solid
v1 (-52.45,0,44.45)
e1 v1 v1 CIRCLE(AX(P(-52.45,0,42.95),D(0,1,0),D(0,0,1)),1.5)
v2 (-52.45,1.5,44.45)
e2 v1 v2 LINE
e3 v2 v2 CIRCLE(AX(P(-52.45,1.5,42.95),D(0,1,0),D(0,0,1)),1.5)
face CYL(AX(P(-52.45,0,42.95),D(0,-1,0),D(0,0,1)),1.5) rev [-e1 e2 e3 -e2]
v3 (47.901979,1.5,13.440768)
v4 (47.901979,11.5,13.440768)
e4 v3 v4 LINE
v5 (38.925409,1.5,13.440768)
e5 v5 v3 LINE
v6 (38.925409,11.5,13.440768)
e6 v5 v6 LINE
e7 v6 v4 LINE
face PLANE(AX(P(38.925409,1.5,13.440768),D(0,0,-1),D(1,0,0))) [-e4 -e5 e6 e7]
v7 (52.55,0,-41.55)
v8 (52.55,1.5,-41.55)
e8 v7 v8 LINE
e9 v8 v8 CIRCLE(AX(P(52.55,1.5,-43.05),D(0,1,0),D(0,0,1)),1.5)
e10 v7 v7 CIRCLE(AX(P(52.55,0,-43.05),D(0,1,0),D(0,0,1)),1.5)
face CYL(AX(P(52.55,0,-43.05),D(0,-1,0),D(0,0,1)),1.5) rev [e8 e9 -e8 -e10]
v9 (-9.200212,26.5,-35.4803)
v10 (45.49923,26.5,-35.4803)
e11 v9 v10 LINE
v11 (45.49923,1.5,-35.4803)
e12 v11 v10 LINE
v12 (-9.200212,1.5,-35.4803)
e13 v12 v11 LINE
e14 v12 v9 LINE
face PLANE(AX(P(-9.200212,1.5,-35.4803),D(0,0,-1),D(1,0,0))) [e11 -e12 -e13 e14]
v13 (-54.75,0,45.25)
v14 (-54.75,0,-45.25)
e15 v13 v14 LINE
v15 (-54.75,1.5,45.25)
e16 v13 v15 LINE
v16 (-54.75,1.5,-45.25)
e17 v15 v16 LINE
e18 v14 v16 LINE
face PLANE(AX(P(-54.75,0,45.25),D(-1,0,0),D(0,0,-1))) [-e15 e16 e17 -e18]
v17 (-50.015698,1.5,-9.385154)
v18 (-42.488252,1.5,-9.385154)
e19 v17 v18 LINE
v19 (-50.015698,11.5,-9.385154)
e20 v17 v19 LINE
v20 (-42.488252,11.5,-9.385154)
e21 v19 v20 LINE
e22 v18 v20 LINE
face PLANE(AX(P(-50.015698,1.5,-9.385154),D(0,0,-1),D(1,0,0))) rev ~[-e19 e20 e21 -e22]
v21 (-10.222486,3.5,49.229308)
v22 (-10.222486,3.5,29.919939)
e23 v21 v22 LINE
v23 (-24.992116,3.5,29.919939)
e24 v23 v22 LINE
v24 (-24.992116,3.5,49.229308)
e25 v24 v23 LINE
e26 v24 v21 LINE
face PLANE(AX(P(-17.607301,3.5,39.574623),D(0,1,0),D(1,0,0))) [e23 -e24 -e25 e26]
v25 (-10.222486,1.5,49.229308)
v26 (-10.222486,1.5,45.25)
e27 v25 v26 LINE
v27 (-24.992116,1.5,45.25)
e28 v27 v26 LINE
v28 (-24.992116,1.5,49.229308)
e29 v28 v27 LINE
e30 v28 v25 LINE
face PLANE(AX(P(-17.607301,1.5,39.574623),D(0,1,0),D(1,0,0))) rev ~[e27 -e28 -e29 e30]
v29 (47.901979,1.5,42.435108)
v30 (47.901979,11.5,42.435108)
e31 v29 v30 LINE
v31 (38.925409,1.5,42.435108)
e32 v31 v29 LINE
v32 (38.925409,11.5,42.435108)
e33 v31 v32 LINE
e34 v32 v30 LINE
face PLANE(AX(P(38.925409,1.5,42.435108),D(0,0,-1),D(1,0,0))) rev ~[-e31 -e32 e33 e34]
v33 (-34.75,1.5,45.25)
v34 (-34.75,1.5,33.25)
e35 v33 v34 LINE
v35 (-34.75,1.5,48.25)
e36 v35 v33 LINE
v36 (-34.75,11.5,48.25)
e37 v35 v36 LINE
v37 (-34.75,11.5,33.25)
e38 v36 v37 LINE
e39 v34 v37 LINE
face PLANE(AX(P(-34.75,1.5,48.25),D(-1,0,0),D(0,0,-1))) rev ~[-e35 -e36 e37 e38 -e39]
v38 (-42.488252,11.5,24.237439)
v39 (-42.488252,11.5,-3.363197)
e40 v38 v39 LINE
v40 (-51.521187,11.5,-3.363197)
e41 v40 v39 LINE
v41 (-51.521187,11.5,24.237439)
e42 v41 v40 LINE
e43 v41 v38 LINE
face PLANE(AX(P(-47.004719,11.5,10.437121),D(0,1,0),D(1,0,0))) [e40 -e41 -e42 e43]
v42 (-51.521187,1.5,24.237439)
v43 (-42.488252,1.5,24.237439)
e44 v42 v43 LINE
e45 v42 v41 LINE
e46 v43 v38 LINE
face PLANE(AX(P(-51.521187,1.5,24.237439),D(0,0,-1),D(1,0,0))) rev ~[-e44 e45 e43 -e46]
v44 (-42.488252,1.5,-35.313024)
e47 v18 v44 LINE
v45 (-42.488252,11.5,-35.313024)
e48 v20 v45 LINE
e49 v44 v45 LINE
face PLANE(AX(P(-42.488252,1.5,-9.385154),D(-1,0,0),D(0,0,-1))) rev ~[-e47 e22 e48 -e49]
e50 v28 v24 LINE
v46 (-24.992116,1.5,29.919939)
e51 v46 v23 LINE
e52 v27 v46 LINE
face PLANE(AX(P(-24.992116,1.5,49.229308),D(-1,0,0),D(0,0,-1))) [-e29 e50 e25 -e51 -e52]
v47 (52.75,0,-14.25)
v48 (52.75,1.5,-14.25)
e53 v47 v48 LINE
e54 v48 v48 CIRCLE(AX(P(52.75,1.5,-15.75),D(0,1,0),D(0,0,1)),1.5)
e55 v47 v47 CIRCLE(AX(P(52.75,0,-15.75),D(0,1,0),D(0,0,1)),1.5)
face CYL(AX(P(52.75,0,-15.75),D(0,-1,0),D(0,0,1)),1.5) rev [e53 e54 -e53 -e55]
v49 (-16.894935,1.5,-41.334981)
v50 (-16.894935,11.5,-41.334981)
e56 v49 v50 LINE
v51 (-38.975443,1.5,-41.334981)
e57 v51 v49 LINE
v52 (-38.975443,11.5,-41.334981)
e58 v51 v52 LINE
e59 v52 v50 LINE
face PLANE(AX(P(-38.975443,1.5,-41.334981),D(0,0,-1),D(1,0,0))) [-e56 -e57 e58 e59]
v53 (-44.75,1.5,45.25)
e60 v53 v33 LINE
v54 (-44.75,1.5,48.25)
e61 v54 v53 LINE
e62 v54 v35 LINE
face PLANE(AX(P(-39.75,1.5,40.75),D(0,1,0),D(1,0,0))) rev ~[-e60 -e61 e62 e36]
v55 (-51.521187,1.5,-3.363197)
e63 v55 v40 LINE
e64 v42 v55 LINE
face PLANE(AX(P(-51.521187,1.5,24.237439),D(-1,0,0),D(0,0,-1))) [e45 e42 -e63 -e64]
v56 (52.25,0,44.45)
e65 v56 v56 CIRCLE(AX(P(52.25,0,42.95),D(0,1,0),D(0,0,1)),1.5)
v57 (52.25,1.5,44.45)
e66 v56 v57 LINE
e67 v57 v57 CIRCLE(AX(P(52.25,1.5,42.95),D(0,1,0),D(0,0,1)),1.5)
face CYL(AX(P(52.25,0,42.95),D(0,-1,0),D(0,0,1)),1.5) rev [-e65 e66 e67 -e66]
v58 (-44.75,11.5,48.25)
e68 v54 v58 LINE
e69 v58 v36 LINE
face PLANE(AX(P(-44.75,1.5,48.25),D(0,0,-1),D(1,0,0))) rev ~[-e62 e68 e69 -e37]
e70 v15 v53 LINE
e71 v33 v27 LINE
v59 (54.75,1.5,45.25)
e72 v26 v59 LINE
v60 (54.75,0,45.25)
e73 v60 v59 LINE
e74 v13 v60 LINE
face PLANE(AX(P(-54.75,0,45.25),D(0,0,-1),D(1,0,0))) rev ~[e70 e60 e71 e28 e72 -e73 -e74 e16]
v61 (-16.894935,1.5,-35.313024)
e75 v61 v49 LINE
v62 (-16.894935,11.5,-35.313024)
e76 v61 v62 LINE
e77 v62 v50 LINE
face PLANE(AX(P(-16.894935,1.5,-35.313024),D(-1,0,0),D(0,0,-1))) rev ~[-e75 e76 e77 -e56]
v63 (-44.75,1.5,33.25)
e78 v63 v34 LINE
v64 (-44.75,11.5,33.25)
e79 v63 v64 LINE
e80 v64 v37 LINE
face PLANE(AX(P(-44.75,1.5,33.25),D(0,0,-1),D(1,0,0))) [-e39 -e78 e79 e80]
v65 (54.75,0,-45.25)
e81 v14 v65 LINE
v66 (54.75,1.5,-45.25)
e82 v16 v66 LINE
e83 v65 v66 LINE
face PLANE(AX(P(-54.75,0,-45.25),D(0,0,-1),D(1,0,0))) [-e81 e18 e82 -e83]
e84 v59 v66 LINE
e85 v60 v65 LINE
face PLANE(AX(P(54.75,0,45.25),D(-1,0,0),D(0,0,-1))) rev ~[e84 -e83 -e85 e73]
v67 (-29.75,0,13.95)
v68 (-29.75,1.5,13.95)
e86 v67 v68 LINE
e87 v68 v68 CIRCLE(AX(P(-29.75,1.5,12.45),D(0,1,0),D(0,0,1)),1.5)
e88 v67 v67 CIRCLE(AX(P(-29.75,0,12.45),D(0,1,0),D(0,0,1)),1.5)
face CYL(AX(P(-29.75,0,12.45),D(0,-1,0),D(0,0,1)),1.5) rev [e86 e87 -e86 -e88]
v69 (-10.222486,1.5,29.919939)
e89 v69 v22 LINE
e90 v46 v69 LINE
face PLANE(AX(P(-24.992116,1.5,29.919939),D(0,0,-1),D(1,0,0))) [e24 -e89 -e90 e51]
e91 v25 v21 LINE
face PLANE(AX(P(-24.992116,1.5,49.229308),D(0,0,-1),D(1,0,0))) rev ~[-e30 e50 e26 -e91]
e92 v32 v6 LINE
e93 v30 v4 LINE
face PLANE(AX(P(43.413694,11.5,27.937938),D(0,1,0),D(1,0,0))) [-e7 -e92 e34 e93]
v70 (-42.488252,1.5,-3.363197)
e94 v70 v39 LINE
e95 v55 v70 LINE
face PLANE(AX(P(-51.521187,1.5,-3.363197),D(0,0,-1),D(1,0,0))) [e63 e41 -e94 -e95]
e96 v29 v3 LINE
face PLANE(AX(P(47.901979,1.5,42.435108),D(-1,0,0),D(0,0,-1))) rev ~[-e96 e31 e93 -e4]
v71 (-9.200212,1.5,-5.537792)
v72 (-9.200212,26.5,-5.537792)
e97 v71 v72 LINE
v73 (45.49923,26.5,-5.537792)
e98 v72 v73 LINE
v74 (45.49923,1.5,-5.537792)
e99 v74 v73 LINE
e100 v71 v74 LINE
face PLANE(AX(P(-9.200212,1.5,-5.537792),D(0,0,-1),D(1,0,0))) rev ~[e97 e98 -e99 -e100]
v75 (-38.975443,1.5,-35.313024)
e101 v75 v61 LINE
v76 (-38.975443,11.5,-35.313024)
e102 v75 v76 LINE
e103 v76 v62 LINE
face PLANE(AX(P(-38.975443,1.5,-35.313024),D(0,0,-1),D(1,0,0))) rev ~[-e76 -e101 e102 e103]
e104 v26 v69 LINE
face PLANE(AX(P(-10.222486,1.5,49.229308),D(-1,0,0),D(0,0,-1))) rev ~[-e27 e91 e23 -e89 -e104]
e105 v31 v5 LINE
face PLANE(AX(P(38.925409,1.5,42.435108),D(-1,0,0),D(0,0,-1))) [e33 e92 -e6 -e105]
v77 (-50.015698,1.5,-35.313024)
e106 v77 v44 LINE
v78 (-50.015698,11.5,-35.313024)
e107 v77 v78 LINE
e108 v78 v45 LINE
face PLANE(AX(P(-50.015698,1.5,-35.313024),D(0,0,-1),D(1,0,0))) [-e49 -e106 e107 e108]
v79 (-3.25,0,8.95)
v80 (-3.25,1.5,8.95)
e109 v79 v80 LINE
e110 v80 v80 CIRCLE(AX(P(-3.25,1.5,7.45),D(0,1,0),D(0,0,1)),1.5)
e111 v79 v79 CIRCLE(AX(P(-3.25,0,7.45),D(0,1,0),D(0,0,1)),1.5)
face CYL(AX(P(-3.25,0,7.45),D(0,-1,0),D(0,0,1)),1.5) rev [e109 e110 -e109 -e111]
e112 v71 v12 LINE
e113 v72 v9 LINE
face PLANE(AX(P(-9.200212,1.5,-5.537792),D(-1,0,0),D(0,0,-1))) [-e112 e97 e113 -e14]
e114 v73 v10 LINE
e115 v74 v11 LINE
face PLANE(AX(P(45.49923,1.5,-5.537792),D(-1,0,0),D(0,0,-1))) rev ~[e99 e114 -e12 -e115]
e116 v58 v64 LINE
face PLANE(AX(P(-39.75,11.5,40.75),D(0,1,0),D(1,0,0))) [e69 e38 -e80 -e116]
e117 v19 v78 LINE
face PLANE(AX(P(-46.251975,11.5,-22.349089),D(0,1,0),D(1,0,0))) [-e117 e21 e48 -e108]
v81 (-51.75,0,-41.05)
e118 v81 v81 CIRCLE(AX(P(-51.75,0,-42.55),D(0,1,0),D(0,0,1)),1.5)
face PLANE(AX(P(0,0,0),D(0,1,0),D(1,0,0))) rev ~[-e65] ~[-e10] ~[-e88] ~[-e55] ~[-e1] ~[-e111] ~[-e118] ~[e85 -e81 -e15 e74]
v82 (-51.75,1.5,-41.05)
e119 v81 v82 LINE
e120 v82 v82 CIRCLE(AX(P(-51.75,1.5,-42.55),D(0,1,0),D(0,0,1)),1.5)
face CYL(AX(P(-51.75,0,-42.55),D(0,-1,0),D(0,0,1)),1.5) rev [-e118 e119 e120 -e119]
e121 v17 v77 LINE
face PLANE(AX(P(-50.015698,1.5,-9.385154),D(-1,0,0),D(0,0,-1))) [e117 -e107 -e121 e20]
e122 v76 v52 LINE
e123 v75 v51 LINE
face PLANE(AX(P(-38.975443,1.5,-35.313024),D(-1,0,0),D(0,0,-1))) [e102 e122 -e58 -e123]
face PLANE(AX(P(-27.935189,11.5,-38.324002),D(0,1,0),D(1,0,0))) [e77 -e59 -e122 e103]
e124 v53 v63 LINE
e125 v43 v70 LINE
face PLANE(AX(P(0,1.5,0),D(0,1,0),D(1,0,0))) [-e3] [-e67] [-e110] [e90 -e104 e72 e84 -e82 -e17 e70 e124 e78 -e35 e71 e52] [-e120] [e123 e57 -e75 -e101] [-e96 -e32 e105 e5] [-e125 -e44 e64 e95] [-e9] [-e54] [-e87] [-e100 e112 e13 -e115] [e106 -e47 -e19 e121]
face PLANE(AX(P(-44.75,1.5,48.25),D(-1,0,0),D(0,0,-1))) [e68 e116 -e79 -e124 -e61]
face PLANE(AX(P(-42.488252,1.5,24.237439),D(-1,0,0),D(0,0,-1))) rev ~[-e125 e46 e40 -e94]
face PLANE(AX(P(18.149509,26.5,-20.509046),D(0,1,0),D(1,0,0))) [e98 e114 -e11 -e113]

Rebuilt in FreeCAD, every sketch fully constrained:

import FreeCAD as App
import Part
import Sketcher

V = App.Vector
Q = App.Units.Quantity


def add_polygon(sketch, points):
    """Adds a closed chain of lines whose ends are joined by coincident constraints."""
    first, n = sketch.GeometryCount, len(points)
    for a, b in zip(points, points[1:] + points[:1]):
        sketch.addGeometry(Part.LineSegment(App.Vector(*a, 0), App.Vector(*b, 0)), False)
    for i in range(n):
        sketch.addConstraint(Sketcher.Constraint("Coincident", first + i, 2, first + (i + 1) % n, 1))

doc = App.newDocument("Part")
body = doc.addObject("PartDesign::Body", "Body")

# Sketch on XZ plane
sketch1 = body.newObject("Sketcher::SketchObject", "Sketch")
sketch1.AttachmentSupport = (doc.getObject("XZ_Plane"), [""])
sketch1.MapMode = "FlatFace"
add_polygon(sketch1, [(-54.8, -45.2), (-54.8, 45.2), (54.8, 45.2), (54.8, -45.2)])  # lines 0-3
sketch1.addGeometry(Part.Circle(V(-52.5, 43, 0), V(0, 0, 1), 1.5), False)  # 4
sketch1.addGeometry(Part.Circle(V(-29.8, 12.4, 0), V(0, 0, 1), 1.5), False)  # 5
sketch1.addGeometry(Part.Circle(V(-3.2, 7.5, 0), V(0, 0, 1), 1.5), False)  # 6
sketch1.addGeometry(Part.Circle(V(52.2, 43, 0), V(0, 0, 1), 1.5), False)  # 7
sketch1.addGeometry(Part.Circle(V(-51.8, -42.5, 0), V(0, 0, 1), 1.5), False)  # 8
sketch1.addGeometry(Part.Circle(V(52.8, -15.8, 0), V(0, 0, 1), 1.5), False)  # 9
sketch1.addGeometry(Part.Circle(V(52.5, -43, 0), V(0, 0, 1), 1.5), False)  # 10
sketch1.addConstraint([
    Sketcher.Constraint("Vertical", 0),
    Sketcher.Constraint("Horizontal", 1),
    Sketcher.Constraint("Vertical", 2),
    Sketcher.Constraint("Horizontal", 3),
    Sketcher.Constraint("Equal", 4, 5),
    Sketcher.Constraint("Equal", 5, 6),
    Sketcher.Constraint("Equal", 6, 7),
    Sketcher.Constraint("Equal", 7, 8),
    Sketcher.Constraint("Equal", 8, 9),
    Sketcher.Constraint("Equal", 9, 10),
    Sketcher.Constraint("Symmetric", 0, 2, 2, 2, -1, 1),
    Sketcher.Constraint("Horizontal", 4, 3, 7, 3),
    Sketcher.Constraint("Diameter", 4, Q("3 mm")),
    Sketcher.Constraint("DistanceX", 1, 1, 1, 2, Q("109.5 mm")),
    Sketcher.Constraint("DistanceY", 0, 1, 0, 2, Q("90.5 mm")),
    Sketcher.Constraint("DistanceY", 6, 3, 5, 3, Q("5 mm")),
    Sketcher.Constraint("DistanceX", 5, 3, 7, 3, Q("82 mm")),
    Sketcher.Constraint("DistanceX", 8, 3, 5, 3, Q("22 mm")),
    Sketcher.Constraint("DistanceY", 8, 3, 5, 3, Q("55 mm")),
    Sketcher.Constraint("DistanceX", 6, 3, 9, 3, Q("56 mm")),
    Sketcher.Constraint("DistanceY", 10, 3, 7, 3, Q("86 mm")),
    Sketcher.Constraint("DistanceX", 0, 2, 5, 3, Q("25 mm")),
    Sketcher.Constraint("DistanceX", 9, 3, 1, 2, Q("2 mm")),
    Sketcher.Constraint("DistanceY", 9, 3, 1, 2, Q("61 mm")),
    Sketcher.Constraint("DistanceX", 4, 3, 5, 3, Q("22.7 mm")),
    Sketcher.Constraint("DistanceY", 5, 3, 4, 3, Q("30.5 mm")),
    Sketcher.Constraint("DistanceY", 9, 3, 7, 3, Q("58.7 mm")),
    Sketcher.Constraint("DistanceX", 10, 3, 9, 3, Q("0.2 mm")),
])
pad1 = body.newObject("PartDesign::Pad", "Pad")
pad1.Profile = sketch1
pad1.Length = 1.5
pad1.Reversed = True

# Sketch on XZ plane
sketch2 = body.newObject("Sketcher::SketchObject", "Sketch001")
sketch2.AttachmentSupport = (doc.getObject("XZ_Plane"), [""])
sketch2.MapMode = "FlatFace"
sketch2.AttachmentOffset = App.Placement(V(0, 0, -1.5), App.Rotation())
add_polygon(sketch2, [(-45, 33), (-45, 48), (-35, 48), (-35, 33)])  # lines 0-3
sketch2.addConstraint([
    Sketcher.Constraint("Vertical", 0),
    Sketcher.Constraint("Horizontal", 1),
    Sketcher.Constraint("Vertical", 2),
    Sketcher.Constraint("Horizontal", 3),
    Sketcher.Constraint("DistanceX", 1, 1, 1, 2, Q("10 mm")),
    Sketcher.Constraint("DistanceY", 0, 1, 0, 2, Q("15 mm")),
    Sketcher.Constraint("DistanceX", 0, 2, -1, 1, Q("44.75 mm")),
    Sketcher.Constraint("DistanceY", -1, 1, 0, 2, Q("48.25 mm")),
])
pad2 = body.newObject("PartDesign::Pad", "Pad001")
pad2.Profile = sketch2
pad2.Length = 10
pad2.Reversed = True

# Sketch on XZ plane
sketch3 = body.newObject("Sketcher::SketchObject", "Sketch002")
sketch3.AttachmentSupport = (doc.getObject("XZ_Plane"), [""])
sketch3.MapMode = "FlatFace"
sketch3.AttachmentOffset = App.Placement(V(0, 0, -1.5), App.Rotation())
add_polygon(sketch3, [(-25, 30), (-25, 49), (-10, 49), (-10, 30)])  # lines 0-3
sketch3.addConstraint([
    Sketcher.Constraint("Vertical", 0),
    Sketcher.Constraint("Horizontal", 1),
    Sketcher.Constraint("Vertical", 2),
    Sketcher.Constraint("Horizontal", 3),
    Sketcher.Constraint("DistanceX", 1, 1, 1, 2, Q("14.76963 mm")),
    Sketcher.Constraint("DistanceY", 0, 1, 0, 2, Q("19.309369 mm")),
    Sketcher.Constraint("DistanceY", -1, 1, 2, 2, Q("29.919939 mm")),
    Sketcher.Constraint("DistanceX", 0, 2, -1, 1, Q("24.992116 mm")),
])
pad3 = body.newObject("PartDesign::Pad", "Pad002")
pad3.Profile = sketch3
pad3.Length = 2
pad3.Reversed = True

# Sketch on XZ plane
sketch4 = body.newObject("Sketcher::SketchObject", "Sketch003")
sketch4.AttachmentSupport = (doc.getObject("XZ_Plane"), [""])
sketch4.MapMode = "FlatFace"
sketch4.AttachmentOffset = App.Placement(V(0, 0, -1.5), App.Rotation())
add_polygon(sketch4, [(-9, -35), (-9, -6), (45, -6), (45, -35)])  # lines 0-3
sketch4.addConstraint([
    Sketcher.Constraint("Vertical", 0),
    Sketcher.Constraint("Horizontal", 1),
    Sketcher.Constraint("Vertical", 2),
    Sketcher.Constraint("Horizontal", 3),
    Sketcher.Constraint("DistanceY", 0, 1, 0, 2, Q("29.942508 mm")),
    Sketcher.Constraint("DistanceY", 2, 2, -1, 1, Q("35.4803 mm")),
    Sketcher.Constraint("DistanceX", 1, 1, 1, 2, Q("54.699442 mm")),
    Sketcher.Constraint("DistanceX", 0, 2, -1, 1, Q("9.200212 mm")),
])
pad4 = body.newObject("PartDesign::Pad", "Pad003")
pad4.Profile = sketch4
pad4.Length = 25
pad4.Reversed = True

# Sketch on XZ plane
sketch5 = body.newObject("Sketcher::SketchObject", "Sketch004")
sketch5.AttachmentSupport = (doc.getObject("XZ_Plane"), [""])
sketch5.MapMode = "FlatFace"
sketch5.AttachmentOffset = App.Placement(V(0, 0, -1.5), App.Rotation())
add_polygon(sketch5, [(-52, -3), (-52, 24), (-42, 24), (-42, -3)])  # lines 0-3
add_polygon(sketch5, [(-50, -35), (-50, -9), (-42, -9), (-42, -35)])  # lines 4-7
add_polygon(sketch5, [(-39, -41), (-39, -35), (-17, -35), (-17, -41)])  # lines 8-11
add_polygon(sketch5, [(39, 13), (39, 42), (48, 42), (48, 13)])  # lines 12-15
sketch5.addConstraint([
    Sketcher.Constraint("Vertical", 0),
    Sketcher.Constraint("Horizontal", 1),
    Sketcher.Constraint("Vertical", 2),
    Sketcher.Constraint("Horizontal", 3),
    Sketcher.Constraint("Vertical", 4),
    Sketcher.Constraint("Horizontal", 5),
    Sketcher.Constraint("Vertical", 6),
    Sketcher.Constraint("Horizontal", 7),
    Sketcher.Constraint("Vertical", 8),
    Sketcher.Constraint("Horizontal", 9),
    Sketcher.Constraint("Vertical", 10),
    Sketcher.Constraint("Horizontal", 11),
    Sketcher.Constraint("Vertical", 12),
    Sketcher.Constraint("Horizontal", 13),
    Sketcher.Constraint("Vertical", 14),
    Sketcher.Constraint("Horizontal", 15),
    Sketcher.Constraint("Horizontal", 7, 2, 8, 2),
    Sketcher.Constraint("Vertical", 2, 2, 5, 2),
    Sketcher.Constraint("DistanceX", 9, 1, 9, 2, Q("22.080509 mm")),
    Sketcher.Constraint("DistanceX", 13, 1, 13, 2, Q("8.97657 mm")),
    Sketcher.Constraint("DistanceY", 4, 1, 4, 2, Q("25.92787 mm")),
    Sketcher.Constraint("DistanceY", 12, 1, 12, 2, Q("28.99434 mm")),
    Sketcher.Constraint("DistanceX", 1, 1, 1, 2, Q("9.032935 mm")),
    Sketcher.Constraint("DistanceX", 5, 1, 5, 2, Q("7.527446 mm")),
    Sketcher.Constraint("DistanceY", 0, 1, 0, 2, Q("27.600636 mm")),
    Sketcher.Constraint("DistanceY", 8, 1, 8, 2, Q("6.021957 mm")),
    Sketcher.Constraint("DistanceY", -1, 1, 0, 2, Q("24.237439 mm")),
    Sketcher.Constraint("DistanceX", 1, 2, -1, 1, Q("42.488252 mm")),
    Sketcher.Constraint("DistanceY", 10, 2, -1, 1, Q("41.334981 mm")),
    Sketcher.Constraint("DistanceX", -1, 1, 12, 2, Q("38.925409 mm")),
    Sketcher.Constraint("DistanceX", 6, 2, 8, 2, Q("3.512808 mm")),
    Sketcher.Constraint("DistanceY", 1, 2, 12, 2, Q("18.197669 mm")),
])
pad5 = body.newObject("PartDesign::Pad", "Pad004")
pad5.Profile = sketch5
pad5.Length = 10
pad5.Reversed = True

doc.recompute()
